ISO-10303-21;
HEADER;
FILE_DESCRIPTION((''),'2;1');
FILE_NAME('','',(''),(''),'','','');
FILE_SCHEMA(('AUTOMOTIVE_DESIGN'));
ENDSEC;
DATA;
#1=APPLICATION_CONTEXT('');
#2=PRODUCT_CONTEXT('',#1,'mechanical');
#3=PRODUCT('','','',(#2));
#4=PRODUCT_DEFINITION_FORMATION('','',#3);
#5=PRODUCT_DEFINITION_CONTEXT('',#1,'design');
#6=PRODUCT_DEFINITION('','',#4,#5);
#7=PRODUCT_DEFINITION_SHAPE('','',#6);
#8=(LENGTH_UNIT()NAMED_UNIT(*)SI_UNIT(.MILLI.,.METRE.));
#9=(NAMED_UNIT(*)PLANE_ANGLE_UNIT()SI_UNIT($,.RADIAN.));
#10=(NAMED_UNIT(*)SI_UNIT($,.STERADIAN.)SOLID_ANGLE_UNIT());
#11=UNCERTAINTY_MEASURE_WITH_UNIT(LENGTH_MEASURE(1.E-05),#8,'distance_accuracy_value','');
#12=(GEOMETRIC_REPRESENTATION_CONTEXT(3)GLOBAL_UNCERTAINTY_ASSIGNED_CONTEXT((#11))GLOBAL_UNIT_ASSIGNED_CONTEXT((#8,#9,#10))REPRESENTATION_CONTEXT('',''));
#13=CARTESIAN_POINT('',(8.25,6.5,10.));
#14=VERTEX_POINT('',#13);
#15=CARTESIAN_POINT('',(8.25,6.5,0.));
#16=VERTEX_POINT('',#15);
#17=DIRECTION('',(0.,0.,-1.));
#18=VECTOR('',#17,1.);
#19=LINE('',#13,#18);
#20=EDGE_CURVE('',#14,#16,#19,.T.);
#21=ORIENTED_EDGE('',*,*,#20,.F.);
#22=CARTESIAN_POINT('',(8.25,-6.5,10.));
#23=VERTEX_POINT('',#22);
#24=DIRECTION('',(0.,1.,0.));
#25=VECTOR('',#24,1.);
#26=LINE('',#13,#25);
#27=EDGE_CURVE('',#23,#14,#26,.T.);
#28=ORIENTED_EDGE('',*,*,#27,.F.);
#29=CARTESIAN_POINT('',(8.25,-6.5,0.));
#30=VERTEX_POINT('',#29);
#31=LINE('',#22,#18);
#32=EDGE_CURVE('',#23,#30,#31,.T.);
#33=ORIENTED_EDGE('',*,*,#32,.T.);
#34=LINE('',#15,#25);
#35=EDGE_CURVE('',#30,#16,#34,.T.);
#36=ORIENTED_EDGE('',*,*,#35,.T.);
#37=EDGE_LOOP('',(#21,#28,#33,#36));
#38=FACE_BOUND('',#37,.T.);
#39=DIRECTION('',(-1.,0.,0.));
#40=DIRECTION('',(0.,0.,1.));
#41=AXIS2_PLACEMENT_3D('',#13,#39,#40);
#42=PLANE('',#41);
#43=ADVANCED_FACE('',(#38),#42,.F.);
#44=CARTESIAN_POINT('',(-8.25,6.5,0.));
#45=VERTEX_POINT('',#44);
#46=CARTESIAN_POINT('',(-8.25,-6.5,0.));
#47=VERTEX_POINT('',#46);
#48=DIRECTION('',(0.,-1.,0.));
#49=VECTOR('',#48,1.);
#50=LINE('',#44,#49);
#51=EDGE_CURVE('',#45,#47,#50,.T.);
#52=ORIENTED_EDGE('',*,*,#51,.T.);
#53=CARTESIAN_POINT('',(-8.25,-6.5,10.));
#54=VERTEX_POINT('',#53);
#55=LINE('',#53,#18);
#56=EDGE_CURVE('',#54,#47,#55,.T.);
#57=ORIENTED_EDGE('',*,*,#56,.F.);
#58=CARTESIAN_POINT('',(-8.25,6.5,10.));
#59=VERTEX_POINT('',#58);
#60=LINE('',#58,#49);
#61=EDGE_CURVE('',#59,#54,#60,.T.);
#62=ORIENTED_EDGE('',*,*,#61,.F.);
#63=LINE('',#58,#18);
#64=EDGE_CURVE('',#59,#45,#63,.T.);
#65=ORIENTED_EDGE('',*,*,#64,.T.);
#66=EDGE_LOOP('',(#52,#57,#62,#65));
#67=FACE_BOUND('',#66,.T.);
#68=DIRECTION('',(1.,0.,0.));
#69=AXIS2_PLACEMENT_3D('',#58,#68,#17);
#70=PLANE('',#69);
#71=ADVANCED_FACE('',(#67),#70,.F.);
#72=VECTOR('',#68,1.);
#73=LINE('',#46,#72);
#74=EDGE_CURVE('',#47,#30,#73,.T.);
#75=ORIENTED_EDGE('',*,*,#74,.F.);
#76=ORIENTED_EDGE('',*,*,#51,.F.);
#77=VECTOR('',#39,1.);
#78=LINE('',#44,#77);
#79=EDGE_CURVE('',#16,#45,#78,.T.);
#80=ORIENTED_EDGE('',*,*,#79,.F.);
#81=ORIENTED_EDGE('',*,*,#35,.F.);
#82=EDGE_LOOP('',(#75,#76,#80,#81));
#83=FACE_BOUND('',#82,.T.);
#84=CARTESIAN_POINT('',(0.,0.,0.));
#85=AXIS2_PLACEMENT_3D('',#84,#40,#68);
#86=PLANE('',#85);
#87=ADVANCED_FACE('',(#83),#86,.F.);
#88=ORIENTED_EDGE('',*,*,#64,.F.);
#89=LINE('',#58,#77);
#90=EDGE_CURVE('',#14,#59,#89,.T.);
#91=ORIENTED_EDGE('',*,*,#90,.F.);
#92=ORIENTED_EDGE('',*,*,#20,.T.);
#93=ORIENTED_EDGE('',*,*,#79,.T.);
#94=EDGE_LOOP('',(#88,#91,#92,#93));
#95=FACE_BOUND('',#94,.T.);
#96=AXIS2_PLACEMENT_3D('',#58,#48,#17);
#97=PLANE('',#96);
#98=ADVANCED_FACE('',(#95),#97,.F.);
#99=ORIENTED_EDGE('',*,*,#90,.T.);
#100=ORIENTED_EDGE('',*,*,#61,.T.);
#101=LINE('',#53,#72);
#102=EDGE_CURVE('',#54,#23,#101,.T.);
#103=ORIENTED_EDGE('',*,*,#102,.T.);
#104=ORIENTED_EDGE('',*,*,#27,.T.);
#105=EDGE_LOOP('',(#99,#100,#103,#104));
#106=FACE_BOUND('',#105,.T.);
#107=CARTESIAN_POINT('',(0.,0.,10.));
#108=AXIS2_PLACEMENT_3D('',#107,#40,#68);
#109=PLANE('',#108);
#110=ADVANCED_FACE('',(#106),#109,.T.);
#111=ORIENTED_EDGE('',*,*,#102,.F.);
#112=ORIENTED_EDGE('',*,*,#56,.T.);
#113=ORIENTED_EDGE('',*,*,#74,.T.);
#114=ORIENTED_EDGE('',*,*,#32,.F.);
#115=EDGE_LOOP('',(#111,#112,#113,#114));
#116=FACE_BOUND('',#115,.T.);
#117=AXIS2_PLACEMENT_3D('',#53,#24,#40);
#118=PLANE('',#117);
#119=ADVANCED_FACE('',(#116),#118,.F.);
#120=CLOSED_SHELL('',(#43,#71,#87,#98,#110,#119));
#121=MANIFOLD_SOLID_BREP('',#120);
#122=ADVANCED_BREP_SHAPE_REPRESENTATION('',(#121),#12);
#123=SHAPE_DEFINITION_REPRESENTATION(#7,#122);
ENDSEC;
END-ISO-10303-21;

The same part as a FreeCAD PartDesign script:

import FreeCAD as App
import Part
import Sketcher

V = App.Vector


def add_polygon(sketch, points):
    """Adds a closed chain of lines whose ends are joined by coincident constraints."""
    first, n = sketch.GeometryCount, len(points)
    for a, b in zip(points, points[1:] + points[:1]):
        sketch.addGeometry(Part.LineSegment(App.Vector(*a, 0), App.Vector(*b, 0)), False)
    for i in range(n):
        sketch.addConstraint(Sketcher.Constraint("Coincident", first + i, 2, first + (i + 1) % n, 1))

doc = App.newDocument("Part")
params = doc.addObject("Spreadsheet::Sheet", "Params")
for row, (alias, value) in enumerate([
    ("sketch1_height", "13 mm"),
    ("sketch1_width", "16.5 mm"),
    ("pad1_length", "10 mm"),
], start=1):
    params.set(f"A{row}", alias)
    params.set(f"B{row}", "=" + value)
    params.setAlias(f"B{row}", alias)

body = doc.addObject("PartDesign::Body", "Body")

sketch1 = body.newObject("Sketcher::SketchObject", "Sketch")
sketch1.AttachmentSupport = (doc.getObject("XY_Plane"), [""])
sketch1.MapMode = "FlatFace"
add_polygon(sketch1, [(-8, 6), (-8, -6), (8, -6), (8, 6)])
sketch1.addConstraint([
    Sketcher.Constraint("Vertical", 0),
    Sketcher.Constraint("Horizontal", 1),
    Sketcher.Constraint("Vertical", 2),
    Sketcher.Constraint("Horizontal", 3),
    Sketcher.Constraint("Symmetric", 0, 2, 2, 2, -1, 1),
    Sketcher.Constraint("DistanceY", 0, 2, 0, 1, 13.0),
    Sketcher.Constraint("DistanceX", 1, 1, 1, 2, 16.5),
])
sketch1.setExpression("Constraints[9]", "Params.sketch1_height")
sketch1.setExpression("Constraints[10]", "Params.sketch1_width")
pad1 = body.newObject("PartDesign::Pad", "Pad")
pad1.Profile = sketch1
pad1.setExpression("Length", "Params.pad1_length")

doc.recompute()
